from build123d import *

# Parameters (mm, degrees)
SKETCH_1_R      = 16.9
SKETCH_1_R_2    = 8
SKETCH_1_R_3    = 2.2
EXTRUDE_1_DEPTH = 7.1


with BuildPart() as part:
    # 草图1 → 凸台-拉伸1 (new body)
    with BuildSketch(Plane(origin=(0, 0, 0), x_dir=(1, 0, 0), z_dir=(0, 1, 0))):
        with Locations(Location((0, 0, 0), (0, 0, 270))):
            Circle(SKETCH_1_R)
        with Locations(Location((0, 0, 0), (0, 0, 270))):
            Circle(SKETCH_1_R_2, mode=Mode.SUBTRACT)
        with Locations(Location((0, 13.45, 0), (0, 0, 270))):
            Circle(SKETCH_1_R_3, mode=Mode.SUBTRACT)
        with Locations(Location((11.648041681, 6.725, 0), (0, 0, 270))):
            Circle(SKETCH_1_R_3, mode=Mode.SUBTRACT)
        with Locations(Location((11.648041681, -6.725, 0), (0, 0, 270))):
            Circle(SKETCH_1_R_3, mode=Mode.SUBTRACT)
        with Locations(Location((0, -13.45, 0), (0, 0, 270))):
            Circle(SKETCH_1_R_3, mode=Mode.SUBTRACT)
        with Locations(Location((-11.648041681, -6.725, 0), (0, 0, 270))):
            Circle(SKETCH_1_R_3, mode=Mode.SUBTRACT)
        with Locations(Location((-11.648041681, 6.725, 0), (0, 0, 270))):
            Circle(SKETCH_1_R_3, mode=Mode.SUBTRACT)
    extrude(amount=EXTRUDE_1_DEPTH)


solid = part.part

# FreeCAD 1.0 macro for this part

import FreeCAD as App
import Part
import Sketcher
from FreeCAD import Vector

doc = App.newDocument("Part")
body = doc.addObject("PartDesign::Body", "Body")

sketch1 = doc.addObject("Sketcher::SketchObject", "Sketch")
body.addObject(sketch1)
sketch1.AttachmentSupport = (doc.XZ_Plane, [""])
sketch1.MapMode = "FlatFace"
sketch1.addGeometry(Part.Circle(Vector(0, 0, 0), Vector(0, 0, 1), 16.9), False)
sketch1.addGeometry(Part.Circle(Vector(-11.6, -6.7, 0), Vector(0, 0, 1), 2.2), False)
sketch1.addGeometry(Part.Circle(Vector(0, -13.4, 0), Vector(0, 0, 1), 2.2), False)
sketch1.addGeometry(Part.Circle(Vector(-11.6, 6.7, 0), Vector(0, 0, 1), 2.2), False)
sketch1.addGeometry(Part.Circle(Vector(0, 0, 0), Vector(0, 0, 1), 8), False)
sketch1.addGeometry(Part.Circle(Vector(11.6, -6.7, 0), Vector(0, 0, 1), 2.2), False)
sketch1.addGeometry(Part.Circle(Vector(0, 13.4, 0), Vector(0, 0, 1), 2.2), False)
sketch1.addGeometry(Part.Circle(Vector(11.6, 6.7, 0), Vector(0, 0, 1), 2.2), False)
sketch1.addConstraint(Sketcher.Constraint("Coincident", 0, 3, -1, 1))
sketch1.addConstraint(Sketcher.Constraint("Coincident", 4, 3, -1, 1))
sketch1.addConstraint(Sketcher.Constraint("Equal", 1, 2))
sketch1.addConstraint(Sketcher.Constraint("Equal", 2, 3))
sketch1.addConstraint(Sketcher.Constraint("Equal", 3, 5))
sketch1.addConstraint(Sketcher.Constraint("Equal", 5, 6))
sketch1.addConstraint(Sketcher.Constraint("Equal", 6, 7))
sketch1.addConstraint(Sketcher.Constraint("Symmetric", 3, 3, 5, 3, -1, 1))
sketch1.addConstraint(Sketcher.Constraint("Symmetric", 2, 3, 6, 3, -1, 1))
sketch1.addConstraint(Sketcher.Constraint("Symmetric", 1, 3, 7, 3, -1, 1))
sketch1.addConstraint(Sketcher.Constraint("Symmetric", 1, 3, 5, 3, -2))
sketch1.addConstraint(Sketcher.Constraint("PointOnObject", 2, 3, -2))
sketch1.addConstraint(Sketcher.Constraint("Diameter", 4, 16.0))
sketch1.addConstraint(Sketcher.Constraint("Diameter", 0, 33.8))
sketch1.addConstraint(Sketcher.Constraint("Diameter", 1, 4.4))
sketch1.addConstraint(Sketcher.Constraint("DistanceY", 2, 3, -1, 1, 13.45))
sketch1.addConstraint(Sketcher.Constraint("DistanceY", 1, 3, 3, 3, 13.45))
sketch1.addConstraint(Sketcher.Constraint("DistanceX", 1, 3, -1, 1, 11.648042))
pad1 = doc.addObject("PartDesign::Pad", "Pad")
body.addObject(pad1)
pad1.Profile = sketch1
pad1.Length = 7.1
pad1.Reversed = True

doc.recompute()
